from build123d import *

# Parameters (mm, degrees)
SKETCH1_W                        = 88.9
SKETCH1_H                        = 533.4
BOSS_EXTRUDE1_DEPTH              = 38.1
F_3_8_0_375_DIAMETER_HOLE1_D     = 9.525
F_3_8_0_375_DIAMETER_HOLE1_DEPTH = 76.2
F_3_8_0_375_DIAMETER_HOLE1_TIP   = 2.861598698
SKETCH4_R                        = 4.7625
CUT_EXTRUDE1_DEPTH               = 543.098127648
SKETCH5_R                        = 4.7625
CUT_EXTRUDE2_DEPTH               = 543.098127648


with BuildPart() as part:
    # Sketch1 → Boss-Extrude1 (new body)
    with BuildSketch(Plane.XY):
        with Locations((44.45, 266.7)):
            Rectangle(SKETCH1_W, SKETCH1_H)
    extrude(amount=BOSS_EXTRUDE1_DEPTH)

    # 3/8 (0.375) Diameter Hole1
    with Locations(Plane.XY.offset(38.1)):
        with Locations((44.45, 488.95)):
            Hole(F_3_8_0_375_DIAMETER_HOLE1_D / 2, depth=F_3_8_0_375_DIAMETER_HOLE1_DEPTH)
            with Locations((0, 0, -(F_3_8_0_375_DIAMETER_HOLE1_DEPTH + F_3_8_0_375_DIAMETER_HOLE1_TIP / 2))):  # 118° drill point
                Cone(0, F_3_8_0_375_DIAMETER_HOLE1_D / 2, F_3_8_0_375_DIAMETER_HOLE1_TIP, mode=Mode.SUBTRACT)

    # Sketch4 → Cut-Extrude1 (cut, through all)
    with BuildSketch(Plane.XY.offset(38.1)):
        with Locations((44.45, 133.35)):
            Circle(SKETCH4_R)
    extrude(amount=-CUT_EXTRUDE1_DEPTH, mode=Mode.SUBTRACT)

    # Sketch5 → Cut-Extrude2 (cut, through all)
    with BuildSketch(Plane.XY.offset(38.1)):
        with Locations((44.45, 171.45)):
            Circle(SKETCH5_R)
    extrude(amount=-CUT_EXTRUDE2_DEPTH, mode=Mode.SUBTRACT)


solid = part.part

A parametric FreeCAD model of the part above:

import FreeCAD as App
import Part
import Sketcher
from FreeCAD import Vector
Q = App.Units.Quantity


def add_polygon(sketch, points):
    """Adds a closed chain of lines whose ends are joined by coincident constraints."""
    first, n = sketch.GeometryCount, len(points)
    for a, b in zip(points, points[1:] + points[:1]):
        sketch.addGeometry(Part.LineSegment(App.Vector(*a, 0), App.Vector(*b, 0)), False)
    for i in range(n):
        sketch.addConstraint(Sketcher.Constraint("Coincident", first + i, 2, first + (i + 1) % n, 1))

doc = App.newDocument("Part")
body = doc.addObject("PartDesign::Body", "Body")

sketch1 = doc.addObject("Sketcher::SketchObject", "Sketch")
body.addObject(sketch1)
sketch1.AttachmentSupport = (doc.XY_Plane, [""])
sketch1.MapMode = "FlatFace"
add_polygon(sketch1, [(0, 533), (0, 0), (89, 0), (89, 533)])
sketch1.addConstraint([
    Sketcher.Constraint("Vertical", 0),
    Sketcher.Constraint("Horizontal", 1),
    Sketcher.Constraint("Vertical", 2),
    Sketcher.Constraint("Horizontal", 3),
    Sketcher.Constraint("Coincident", 0, 2, -1, 1),
    Sketcher.Constraint("DistanceY", 0, 2, 0, 1, Q("21 in")),
    Sketcher.Constraint("DistanceX", 1, 1, 1, 2, Q("3.5 in")),
])
pad1 = doc.addObject("PartDesign::Pad", "Pad")
body.addObject(pad1)
pad1.Profile = sketch1
pad1.Length = Q("1.5 in")

sketch2 = doc.addObject("Sketcher::SketchObject", "Sketch001")
body.addObject(sketch2)
sketch2.AttachmentSupport = (doc.XY_Plane, [""])
sketch2.MapMode = "FlatFace"
sketch2.AttachmentOffset = App.Placement(Vector(0, 0, 1.5 * 25.4), App.Rotation())
sketch2.addGeometry(Part.Circle(Vector(44.5, 488.9, 0), Vector(0, 0, 1), 4.8), False)
sketch2.addConstraint([
    Sketcher.Constraint("Diameter", 0, Q("0.375 in")),
    Sketcher.Constraint("DistanceX", -1, 1, 0, 3, Q("1.75 in")),
    Sketcher.Constraint("DistanceY", -1, 1, 0, 3, Q("19.25 in")),
])
doc.recompute()
hole = doc.addObject("PartDesign::Hole", "Hole")
body.addObject(hole)
hole.Profile = sketch2
hole.ThreadType = "None"
hole.Diameter = Q("0.375 in")
hole.DepthType = "Dimension"
hole.Depth = Q("3 in")
hole.DrillPoint = "Angled"
hole.DrillPointAngle = 118

sketch3 = doc.addObject("Sketcher::SketchObject", "Sketch002")
body.addObject(sketch3)
sketch3.AttachmentSupport = (doc.XY_Plane, [""])
sketch3.MapMode = "FlatFace"
sketch3.AttachmentOffset = App.Placement(Vector(0, 0, 1.5 * 25.4), App.Rotation())
sketch3.addGeometry(Part.Circle(Vector(44.5, 133.3, 0), Vector(0, 0, 1), 4.8), False)
sketch3.addConstraint([
    Sketcher.Constraint("Diameter", 0, Q("0.375 in")),
    Sketcher.Constraint("DistanceX", -1, 1, 0, 3, Q("1.75 in")),
    Sketcher.Constraint("DistanceY", -1, 1, 0, 3, Q("5.25 in")),
])
pocket1 = doc.addObject("PartDesign::Pocket", "Pocket")
body.addObject(pocket1)
pocket1.Profile = sketch3
pocket1.Type = "ThroughAll"

sketch4 = doc.addObject("Sketcher::SketchObject", "Sketch003")
body.addObject(sketch4)
sketch4.AttachmentSupport = (doc.XY_Plane, [""])
sketch4.MapMode = "FlatFace"
sketch4.AttachmentOffset = App.Placement(Vector(0, 0, 1.5 * 25.4), App.Rotation())
sketch4.addGeometry(Part.Circle(Vector(44.5, 171.4, 0), Vector(0, 0, 1), 4.8), False)
sketch4.addConstraint([
    Sketcher.Constraint("Diameter", 0, Q("0.375 in")),
    Sketcher.Constraint("DistanceX", -1, 1, 0, 3, Q("1.75 in")),
    Sketcher.Constraint("DistanceY", -1, 1, 0, 3, Q("6.75 in")),
])
pocket2 = doc.addObject("PartDesign::Pocket", "Pocket001")
body.addObject(pocket2)
pocket2.Profile = sketch4
pocket2.Type = "ThroughAll"

doc.recompute()
